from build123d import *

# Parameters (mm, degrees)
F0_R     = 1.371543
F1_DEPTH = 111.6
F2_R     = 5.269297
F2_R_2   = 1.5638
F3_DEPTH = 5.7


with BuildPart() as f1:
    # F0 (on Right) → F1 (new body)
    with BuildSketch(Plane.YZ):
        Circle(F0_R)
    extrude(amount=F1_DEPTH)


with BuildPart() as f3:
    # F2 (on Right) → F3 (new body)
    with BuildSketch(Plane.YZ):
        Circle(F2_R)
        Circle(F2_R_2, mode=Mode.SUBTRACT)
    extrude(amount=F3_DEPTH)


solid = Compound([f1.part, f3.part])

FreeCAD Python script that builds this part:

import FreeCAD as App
import Part
import Sketcher

V = App.Vector

doc = App.newDocument("Part")
body = doc.addObject("PartDesign::Body", "Body")

# Sketch on YZ plane
sketch1 = body.newObject("Sketcher::SketchObject", "Sketch")
sketch1.AttachmentSupport = (doc.getObject("YZ_Plane"), [""])
sketch1.MapMode = "FlatFace"
sketch1.addGeometry(Part.Circle(V(0, 0, 0), V(0, 0, 1), 1.4), False)
sketch1.addConstraint([
    Sketcher.Constraint("Coincident", 0, 3, -1, 1),
    Sketcher.Constraint("Diameter", 0, 2.743086),
])
pad1 = body.newObject("PartDesign::Pad", "Pad")
pad1.Profile = sketch1
pad1.Length = 111.6
body2 = doc.addObject("PartDesign::Body", "Body001")

# Sketch on YZ plane
sketch2 = body2.newObject("Sketcher::SketchObject", "Sketch001")
sketch2.AttachmentSupport = (doc.getObject("YZ_Plane001"), [""])
sketch2.MapMode = "FlatFace"
sketch2.addGeometry([
    Part.Circle(V(0, 0, 0), V(0, 0, 1), 5.3),
    Part.Circle(V(0, 0, 0), V(0, 0, 1), 1.6),
], False)
sketch2.addConstraint([
    Sketcher.Constraint("Coincident", 0, 3, -1, 1),
    Sketcher.Constraint("Coincident", 1, 3, -1, 1),
    Sketcher.Constraint("Diameter", 1, 3.1276),
    Sketcher.Constraint("Diameter", 0, 10.538594),
])
pad2 = body2.newObject("PartDesign::Pad", "Pad001")
pad2.Profile = sketch2
pad2.Length = 5.7

doc.recompute()
